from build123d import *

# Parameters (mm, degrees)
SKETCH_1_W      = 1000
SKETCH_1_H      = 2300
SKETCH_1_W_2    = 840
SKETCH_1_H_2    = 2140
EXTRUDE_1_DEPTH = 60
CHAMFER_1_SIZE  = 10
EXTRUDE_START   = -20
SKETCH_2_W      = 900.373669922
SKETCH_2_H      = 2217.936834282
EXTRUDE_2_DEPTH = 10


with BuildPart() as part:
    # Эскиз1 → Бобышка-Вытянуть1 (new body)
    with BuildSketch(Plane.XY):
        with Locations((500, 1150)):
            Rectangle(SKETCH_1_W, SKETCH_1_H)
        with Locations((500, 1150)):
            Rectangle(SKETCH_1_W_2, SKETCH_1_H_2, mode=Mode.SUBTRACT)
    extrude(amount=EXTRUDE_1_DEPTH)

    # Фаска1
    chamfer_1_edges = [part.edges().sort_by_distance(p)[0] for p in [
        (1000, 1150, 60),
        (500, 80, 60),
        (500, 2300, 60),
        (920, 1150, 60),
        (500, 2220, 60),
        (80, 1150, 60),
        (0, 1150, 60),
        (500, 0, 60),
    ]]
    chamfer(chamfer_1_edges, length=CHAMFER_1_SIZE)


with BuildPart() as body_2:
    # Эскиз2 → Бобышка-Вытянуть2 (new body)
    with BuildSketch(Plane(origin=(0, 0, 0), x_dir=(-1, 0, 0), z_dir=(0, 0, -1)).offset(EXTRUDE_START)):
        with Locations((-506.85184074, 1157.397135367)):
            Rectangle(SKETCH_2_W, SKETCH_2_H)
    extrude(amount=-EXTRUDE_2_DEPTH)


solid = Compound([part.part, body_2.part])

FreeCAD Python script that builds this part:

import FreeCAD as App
import Part
import Sketcher
from FreeCAD import Vector


def edges_at(feature, points):
    """Names of the edges that pass closest to the given points."""
    edges = feature.Shape.Edges
    near = lambda p: min(range(len(edges)), key=lambda i: edges[i].distToShape(Part.Vertex(*p))[0])
    return sorted({f"Edge{near(p) + 1}" for p in points})


def add_polygon(sketch, points):
    """Adds a closed chain of lines whose ends are joined by coincident constraints."""
    first, n = sketch.GeometryCount, len(points)
    for a, b in zip(points, points[1:] + points[:1]):
        sketch.addGeometry(Part.LineSegment(App.Vector(*a, 0), App.Vector(*b, 0)), False)
    for i in range(n):
        sketch.addConstraint(Sketcher.Constraint("Coincident", first + i, 2, first + (i + 1) % n, 1))

doc = App.newDocument("Part")
body = doc.addObject("PartDesign::Body", "Body")

# Sketch on XY plane
sketch1 = body.newObject("Sketcher::SketchObject", "Sketch")
sketch1.AttachmentSupport = (doc.getObject("XY_Plane"), [""])
sketch1.MapMode = "FlatFace"
add_polygon(sketch1, [(0, 2300), (0, 0), (1000, 0), (1000, 2300)])  # lines 0-3
add_polygon(sketch1, [(920, 80), (80, 80), (80, 2220), (920, 2220)])  # lines 4-7
sketch1.addConstraint([
    Sketcher.Constraint("Vertical", 0),
    Sketcher.Constraint("Horizontal", 1),
    Sketcher.Constraint("Vertical", 2),
    Sketcher.Constraint("Horizontal", 3),
    Sketcher.Constraint("Horizontal", 4),
    Sketcher.Constraint("Vertical", 5),
    Sketcher.Constraint("Horizontal", 6),
    Sketcher.Constraint("Vertical", 7),
    Sketcher.Constraint("Coincident", 0, 2, -1, 1),
    Sketcher.Constraint("DistanceX", 1, 1, 1, 2, 1000.0),
    Sketcher.Constraint("DistanceX", 4, 2, 4, 1, 840.0),
    Sketcher.Constraint("DistanceY", 0, 2, 0, 1, 2300.0),
    Sketcher.Constraint("DistanceY", 5, 1, 5, 2, 2140.0),
    Sketcher.Constraint("DistanceX", -1, 1, 4, 2, 80.0),
    Sketcher.Constraint("DistanceY", -1, 1, 4, 2, 80.0),
])
pad1 = body.newObject("PartDesign::Pad", "Pad")
pad1.Profile = sketch1
pad1.Length = 60
doc.recompute()

chamfer = body.newObject("PartDesign::Chamfer", "Chamfer")
chamfer.Base = (pad1, edges_at(pad1, [
    (1000, 1150, 60),
    (500, 80, 60),
    (500, 2300, 60),
    (920, 1150, 60),
    (500, 2220, 60),
    (80, 1150, 60),
    (0, 1150, 60),
    (500, 0, 60),
]))
chamfer.Size = 10
body2 = doc.addObject("PartDesign::Body", "Body001")

# Sketch on XY plane
sketch2 = body2.newObject("Sketcher::SketchObject", "Sketch001")
sketch2.AttachmentSupport = (doc.getObject("XY_Plane001"), [""])
sketch2.MapMode = "FlatFace"
sketch2.AttachmentOffset = App.Placement(Vector(0, 0, 20), App.Rotation())
add_polygon(sketch2, [(957.038676, 2266.365553), (957.038676, 48.428718), (56.665006, 48.428718), (56.665006, 2266.365553)])  # lines 0-3
sketch2.addConstraint([
    Sketcher.Constraint("Vertical", 0),
    Sketcher.Constraint("Horizontal", 1),
    Sketcher.Constraint("Vertical", 2),
    Sketcher.Constraint("Horizontal", 3),
    Sketcher.Constraint("DistanceX", 1, 2, 1, 1, 900.37367),
    Sketcher.Constraint("DistanceY", 0, 2, 0, 1, 2217.936834),
    Sketcher.Constraint("DistanceY", -1, 1, 0, 2, 48.428718),
    Sketcher.Constraint("DistanceX", -1, 1, 0, 2, 957.038676),
])
pad2 = body2.newObject("PartDesign::Pad", "Pad001")
pad2.Profile = sketch2
pad2.Length = 10

doc.recompute()
